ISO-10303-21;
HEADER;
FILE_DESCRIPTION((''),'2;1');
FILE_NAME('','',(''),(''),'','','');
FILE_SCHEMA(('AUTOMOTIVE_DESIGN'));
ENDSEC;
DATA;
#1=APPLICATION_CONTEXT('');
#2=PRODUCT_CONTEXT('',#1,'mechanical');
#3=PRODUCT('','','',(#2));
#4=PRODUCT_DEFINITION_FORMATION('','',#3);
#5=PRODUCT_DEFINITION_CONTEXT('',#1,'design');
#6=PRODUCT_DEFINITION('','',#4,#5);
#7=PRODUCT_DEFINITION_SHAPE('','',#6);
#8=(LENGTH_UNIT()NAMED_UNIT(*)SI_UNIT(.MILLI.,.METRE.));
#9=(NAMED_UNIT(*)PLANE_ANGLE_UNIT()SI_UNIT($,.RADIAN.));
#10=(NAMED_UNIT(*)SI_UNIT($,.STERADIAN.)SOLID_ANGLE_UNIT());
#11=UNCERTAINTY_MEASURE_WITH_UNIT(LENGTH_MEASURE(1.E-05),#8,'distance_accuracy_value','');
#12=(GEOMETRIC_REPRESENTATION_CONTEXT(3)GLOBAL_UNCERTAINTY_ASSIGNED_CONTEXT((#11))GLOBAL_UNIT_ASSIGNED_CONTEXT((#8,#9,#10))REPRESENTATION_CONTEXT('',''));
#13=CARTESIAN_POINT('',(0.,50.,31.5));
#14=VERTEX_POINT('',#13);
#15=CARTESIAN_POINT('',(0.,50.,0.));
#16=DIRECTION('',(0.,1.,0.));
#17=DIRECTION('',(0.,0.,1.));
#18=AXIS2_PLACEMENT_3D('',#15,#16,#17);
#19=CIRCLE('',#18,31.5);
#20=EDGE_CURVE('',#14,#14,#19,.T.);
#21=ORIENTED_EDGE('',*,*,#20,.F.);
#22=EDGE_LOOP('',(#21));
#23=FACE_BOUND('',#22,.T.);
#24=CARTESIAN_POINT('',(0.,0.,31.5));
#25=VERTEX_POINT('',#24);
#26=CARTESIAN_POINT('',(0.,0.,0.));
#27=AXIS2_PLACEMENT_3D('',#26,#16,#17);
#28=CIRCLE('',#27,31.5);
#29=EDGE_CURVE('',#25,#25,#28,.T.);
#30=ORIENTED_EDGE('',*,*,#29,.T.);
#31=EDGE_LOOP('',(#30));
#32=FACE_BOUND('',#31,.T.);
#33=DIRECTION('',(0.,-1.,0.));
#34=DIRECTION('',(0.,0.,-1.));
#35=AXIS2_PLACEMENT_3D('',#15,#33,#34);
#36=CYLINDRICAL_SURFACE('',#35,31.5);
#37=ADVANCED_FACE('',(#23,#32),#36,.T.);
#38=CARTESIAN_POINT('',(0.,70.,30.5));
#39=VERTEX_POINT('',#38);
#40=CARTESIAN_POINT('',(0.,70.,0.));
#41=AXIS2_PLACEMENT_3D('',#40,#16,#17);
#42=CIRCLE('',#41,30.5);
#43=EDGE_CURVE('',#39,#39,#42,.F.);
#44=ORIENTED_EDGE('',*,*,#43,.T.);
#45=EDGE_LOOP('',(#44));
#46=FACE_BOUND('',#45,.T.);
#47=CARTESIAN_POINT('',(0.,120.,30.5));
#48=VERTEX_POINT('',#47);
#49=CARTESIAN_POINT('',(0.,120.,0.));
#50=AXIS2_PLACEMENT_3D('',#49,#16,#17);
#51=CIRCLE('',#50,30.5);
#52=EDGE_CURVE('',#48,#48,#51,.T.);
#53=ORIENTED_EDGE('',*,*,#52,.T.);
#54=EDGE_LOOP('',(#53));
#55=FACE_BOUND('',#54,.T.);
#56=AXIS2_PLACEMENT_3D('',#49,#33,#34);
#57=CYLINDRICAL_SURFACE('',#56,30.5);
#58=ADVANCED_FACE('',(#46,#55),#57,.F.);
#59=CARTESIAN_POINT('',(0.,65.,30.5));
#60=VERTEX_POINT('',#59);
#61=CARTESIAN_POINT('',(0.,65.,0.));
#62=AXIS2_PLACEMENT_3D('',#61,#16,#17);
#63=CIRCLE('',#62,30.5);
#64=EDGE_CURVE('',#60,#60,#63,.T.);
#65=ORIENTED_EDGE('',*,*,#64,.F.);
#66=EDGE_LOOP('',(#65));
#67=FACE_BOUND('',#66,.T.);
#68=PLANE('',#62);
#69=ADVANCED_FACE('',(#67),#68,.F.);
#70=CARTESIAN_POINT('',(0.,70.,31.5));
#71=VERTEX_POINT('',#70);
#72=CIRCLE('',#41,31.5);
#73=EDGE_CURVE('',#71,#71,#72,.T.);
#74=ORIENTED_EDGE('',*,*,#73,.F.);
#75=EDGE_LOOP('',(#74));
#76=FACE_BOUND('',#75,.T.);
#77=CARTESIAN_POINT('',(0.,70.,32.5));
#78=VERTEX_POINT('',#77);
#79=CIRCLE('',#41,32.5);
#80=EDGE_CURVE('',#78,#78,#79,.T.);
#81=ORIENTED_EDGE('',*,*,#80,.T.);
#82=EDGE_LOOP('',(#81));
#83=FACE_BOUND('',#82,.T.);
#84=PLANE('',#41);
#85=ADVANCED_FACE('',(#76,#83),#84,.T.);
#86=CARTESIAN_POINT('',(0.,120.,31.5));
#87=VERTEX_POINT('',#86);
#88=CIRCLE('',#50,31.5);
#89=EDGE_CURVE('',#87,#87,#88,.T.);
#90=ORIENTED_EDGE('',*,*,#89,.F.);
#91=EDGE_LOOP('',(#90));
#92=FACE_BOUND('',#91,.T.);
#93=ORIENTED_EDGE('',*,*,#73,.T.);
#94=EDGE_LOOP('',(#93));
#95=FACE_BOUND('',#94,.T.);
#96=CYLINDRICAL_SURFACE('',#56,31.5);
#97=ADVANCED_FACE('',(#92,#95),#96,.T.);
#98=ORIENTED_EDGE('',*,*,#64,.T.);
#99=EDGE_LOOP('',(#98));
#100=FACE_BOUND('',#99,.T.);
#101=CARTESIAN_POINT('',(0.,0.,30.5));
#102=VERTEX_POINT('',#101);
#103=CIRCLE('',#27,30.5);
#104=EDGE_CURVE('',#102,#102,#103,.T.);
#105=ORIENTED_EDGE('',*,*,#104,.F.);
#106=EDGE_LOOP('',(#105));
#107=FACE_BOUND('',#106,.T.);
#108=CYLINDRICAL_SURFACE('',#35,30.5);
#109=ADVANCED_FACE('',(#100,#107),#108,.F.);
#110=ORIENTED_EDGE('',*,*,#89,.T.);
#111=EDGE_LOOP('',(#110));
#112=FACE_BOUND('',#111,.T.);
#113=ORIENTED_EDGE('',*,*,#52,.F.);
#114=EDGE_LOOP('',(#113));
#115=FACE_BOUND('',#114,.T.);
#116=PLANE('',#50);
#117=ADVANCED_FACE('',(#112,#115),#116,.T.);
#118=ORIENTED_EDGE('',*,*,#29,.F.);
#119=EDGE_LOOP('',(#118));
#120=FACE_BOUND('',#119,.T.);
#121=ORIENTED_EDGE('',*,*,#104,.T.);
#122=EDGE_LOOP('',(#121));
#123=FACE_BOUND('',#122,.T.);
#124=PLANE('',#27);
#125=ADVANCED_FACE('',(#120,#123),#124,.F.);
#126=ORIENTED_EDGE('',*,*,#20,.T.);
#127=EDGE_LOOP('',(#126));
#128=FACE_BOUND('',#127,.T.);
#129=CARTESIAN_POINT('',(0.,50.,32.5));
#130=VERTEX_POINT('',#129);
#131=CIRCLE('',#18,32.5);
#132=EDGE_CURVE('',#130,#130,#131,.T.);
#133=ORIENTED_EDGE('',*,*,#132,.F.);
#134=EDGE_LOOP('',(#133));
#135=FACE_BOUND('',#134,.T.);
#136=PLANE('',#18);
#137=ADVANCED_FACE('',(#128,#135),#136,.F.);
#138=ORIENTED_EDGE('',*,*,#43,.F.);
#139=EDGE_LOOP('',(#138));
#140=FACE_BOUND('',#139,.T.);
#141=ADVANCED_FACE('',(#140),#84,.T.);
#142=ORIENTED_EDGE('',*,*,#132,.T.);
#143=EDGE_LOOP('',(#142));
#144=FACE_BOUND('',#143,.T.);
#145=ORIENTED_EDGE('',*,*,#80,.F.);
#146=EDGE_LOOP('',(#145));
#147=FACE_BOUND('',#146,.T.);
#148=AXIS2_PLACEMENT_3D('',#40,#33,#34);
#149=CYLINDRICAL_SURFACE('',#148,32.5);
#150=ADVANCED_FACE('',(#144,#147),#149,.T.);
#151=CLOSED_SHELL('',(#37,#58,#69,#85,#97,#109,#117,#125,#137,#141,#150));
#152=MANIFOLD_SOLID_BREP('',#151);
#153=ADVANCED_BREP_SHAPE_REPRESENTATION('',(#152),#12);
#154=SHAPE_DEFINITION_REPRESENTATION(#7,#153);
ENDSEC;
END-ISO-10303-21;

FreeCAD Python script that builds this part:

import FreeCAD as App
import Part
import Sketcher
Q = App.Units.Quantity

doc = App.newDocument("Part")
body = doc.addObject("PartDesign::Body", "Body")

sketch1 = body.newObject("Sketcher::SketchObject", "Sketch")
sketch1.AttachmentSupport = (doc.getObject("XZ_Plane"), [""])
sketch1.MapMode = "FlatFace"
sketch1.addGeometry([
    Part.Circle(App.Vector(0, 0, 0), App.Vector(0, 0, 1), 32),
    Part.Circle(App.Vector(0, 0, 0), App.Vector(0, 0, 1), 30),
], False)
sketch1.addConstraint([
    Sketcher.Constraint("Coincident", 0, 3, -1, 1),
    Sketcher.Constraint("Coincident", 1, 3, -1, 1),
    Sketcher.Constraint("Diameter", 0, Q("63 mm")),
    Sketcher.Constraint("Diameter", 1, Q("61 mm")),
])
pad1 = body.newObject("PartDesign::Pad", "Pad")
pad1.Profile = sketch1
pad1.Length = 50
pad1.Reversed = True
body2 = doc.addObject("PartDesign::Body", "Body001")

sketch2 = body2.newObject("Sketcher::SketchObject", "Sketch001")
sketch2.AttachmentSupport = (doc.getObject("XZ_Plane001"), [""])
sketch2.MapMode = "FlatFace"
sketch2.AttachmentOffset = App.Placement(App.Vector(0, 0, -50), App.Rotation())
sketch2.addGeometry([
    Part.Circle(App.Vector(0, 0, 0), App.Vector(0, 0, 1), 32),
    Part.Circle(App.Vector(0, 0, 0), App.Vector(0, 0, 1), 30),
], False)
sketch2.addConstraint([
    Sketcher.Constraint("Coincident", 0, 3, -1, 1),
    Sketcher.Constraint("Coincident", 1, 3, -1, 1),
    Sketcher.Constraint("Diameter", 0, Q("65 mm")),
    Sketcher.Constraint("Diameter", 1, Q("61 mm")),
])
pad2 = body2.newObject("PartDesign::Pad", "Pad001")
pad2.Profile = sketch2
pad2.Length = 20
pad2.Reversed = True
body3 = doc.addObject("PartDesign::Body", "Body002")

sketch3 = body3.newObject("Sketcher::SketchObject", "Sketch002")
sketch3.AttachmentSupport = (doc.getObject("XZ_Plane002"), [""])
sketch3.MapMode = "FlatFace"
sketch3.AttachmentOffset = App.Placement(App.Vector(0, 0, -70), App.Rotation())
sketch3.addGeometry([
    Part.Circle(App.Vector(0, 0, 0), App.Vector(0, 0, 1), 32),
    Part.Circle(App.Vector(0, 0, 0), App.Vector(0, 0, 1), 30),
], False)
sketch3.addConstraint([
    Sketcher.Constraint("Coincident", 0, 3, -1, 1),
    Sketcher.Constraint("Coincident", 1, 3, -1, 1),
    Sketcher.Constraint("Diameter", 0, Q("63 mm")),
    Sketcher.Constraint("Diameter", 1, Q("61 mm")),
])
pad3 = body3.newObject("PartDesign::Pad", "Pad002")
pad3.Profile = sketch3
pad3.Length = 50
pad3.Reversed = True
doc.recompute()

boolean = body2.newObject("PartDesign::Boolean", "Boolean")
boolean.Type = "Fuse"
boolean.addObjects([body3])

sketch4 = body2.newObject("Sketcher::SketchObject", "Sketch003")
sketch4.AttachmentSupport = (doc.getObject("XZ_Plane001"), [""])
sketch4.MapMode = "FlatFace"
sketch4.AttachmentOffset = App.Placement(App.Vector(0, 0, -65), App.Rotation())
sketch4.addGeometry(Part.Circle(App.Vector(0, 0, 0), App.Vector(0, 0, 1), 30), False)
sketch4.addConstraint([
    Sketcher.Constraint("Coincident", 0, 3, -1, 1),
    Sketcher.Constraint("Diameter", 0, Q("61 mm")),
])
pad4 = body2.newObject("PartDesign::Pad", "Pad003")
pad4.Profile = sketch4
pad4.Length = 5
pad4.Reversed = True
doc.recompute()

boolean2 = body.newObject("PartDesign::Boolean", "Boolean001")
boolean2.Type = "Fuse"
boolean2.addObjects([body2])

doc.recompute()
